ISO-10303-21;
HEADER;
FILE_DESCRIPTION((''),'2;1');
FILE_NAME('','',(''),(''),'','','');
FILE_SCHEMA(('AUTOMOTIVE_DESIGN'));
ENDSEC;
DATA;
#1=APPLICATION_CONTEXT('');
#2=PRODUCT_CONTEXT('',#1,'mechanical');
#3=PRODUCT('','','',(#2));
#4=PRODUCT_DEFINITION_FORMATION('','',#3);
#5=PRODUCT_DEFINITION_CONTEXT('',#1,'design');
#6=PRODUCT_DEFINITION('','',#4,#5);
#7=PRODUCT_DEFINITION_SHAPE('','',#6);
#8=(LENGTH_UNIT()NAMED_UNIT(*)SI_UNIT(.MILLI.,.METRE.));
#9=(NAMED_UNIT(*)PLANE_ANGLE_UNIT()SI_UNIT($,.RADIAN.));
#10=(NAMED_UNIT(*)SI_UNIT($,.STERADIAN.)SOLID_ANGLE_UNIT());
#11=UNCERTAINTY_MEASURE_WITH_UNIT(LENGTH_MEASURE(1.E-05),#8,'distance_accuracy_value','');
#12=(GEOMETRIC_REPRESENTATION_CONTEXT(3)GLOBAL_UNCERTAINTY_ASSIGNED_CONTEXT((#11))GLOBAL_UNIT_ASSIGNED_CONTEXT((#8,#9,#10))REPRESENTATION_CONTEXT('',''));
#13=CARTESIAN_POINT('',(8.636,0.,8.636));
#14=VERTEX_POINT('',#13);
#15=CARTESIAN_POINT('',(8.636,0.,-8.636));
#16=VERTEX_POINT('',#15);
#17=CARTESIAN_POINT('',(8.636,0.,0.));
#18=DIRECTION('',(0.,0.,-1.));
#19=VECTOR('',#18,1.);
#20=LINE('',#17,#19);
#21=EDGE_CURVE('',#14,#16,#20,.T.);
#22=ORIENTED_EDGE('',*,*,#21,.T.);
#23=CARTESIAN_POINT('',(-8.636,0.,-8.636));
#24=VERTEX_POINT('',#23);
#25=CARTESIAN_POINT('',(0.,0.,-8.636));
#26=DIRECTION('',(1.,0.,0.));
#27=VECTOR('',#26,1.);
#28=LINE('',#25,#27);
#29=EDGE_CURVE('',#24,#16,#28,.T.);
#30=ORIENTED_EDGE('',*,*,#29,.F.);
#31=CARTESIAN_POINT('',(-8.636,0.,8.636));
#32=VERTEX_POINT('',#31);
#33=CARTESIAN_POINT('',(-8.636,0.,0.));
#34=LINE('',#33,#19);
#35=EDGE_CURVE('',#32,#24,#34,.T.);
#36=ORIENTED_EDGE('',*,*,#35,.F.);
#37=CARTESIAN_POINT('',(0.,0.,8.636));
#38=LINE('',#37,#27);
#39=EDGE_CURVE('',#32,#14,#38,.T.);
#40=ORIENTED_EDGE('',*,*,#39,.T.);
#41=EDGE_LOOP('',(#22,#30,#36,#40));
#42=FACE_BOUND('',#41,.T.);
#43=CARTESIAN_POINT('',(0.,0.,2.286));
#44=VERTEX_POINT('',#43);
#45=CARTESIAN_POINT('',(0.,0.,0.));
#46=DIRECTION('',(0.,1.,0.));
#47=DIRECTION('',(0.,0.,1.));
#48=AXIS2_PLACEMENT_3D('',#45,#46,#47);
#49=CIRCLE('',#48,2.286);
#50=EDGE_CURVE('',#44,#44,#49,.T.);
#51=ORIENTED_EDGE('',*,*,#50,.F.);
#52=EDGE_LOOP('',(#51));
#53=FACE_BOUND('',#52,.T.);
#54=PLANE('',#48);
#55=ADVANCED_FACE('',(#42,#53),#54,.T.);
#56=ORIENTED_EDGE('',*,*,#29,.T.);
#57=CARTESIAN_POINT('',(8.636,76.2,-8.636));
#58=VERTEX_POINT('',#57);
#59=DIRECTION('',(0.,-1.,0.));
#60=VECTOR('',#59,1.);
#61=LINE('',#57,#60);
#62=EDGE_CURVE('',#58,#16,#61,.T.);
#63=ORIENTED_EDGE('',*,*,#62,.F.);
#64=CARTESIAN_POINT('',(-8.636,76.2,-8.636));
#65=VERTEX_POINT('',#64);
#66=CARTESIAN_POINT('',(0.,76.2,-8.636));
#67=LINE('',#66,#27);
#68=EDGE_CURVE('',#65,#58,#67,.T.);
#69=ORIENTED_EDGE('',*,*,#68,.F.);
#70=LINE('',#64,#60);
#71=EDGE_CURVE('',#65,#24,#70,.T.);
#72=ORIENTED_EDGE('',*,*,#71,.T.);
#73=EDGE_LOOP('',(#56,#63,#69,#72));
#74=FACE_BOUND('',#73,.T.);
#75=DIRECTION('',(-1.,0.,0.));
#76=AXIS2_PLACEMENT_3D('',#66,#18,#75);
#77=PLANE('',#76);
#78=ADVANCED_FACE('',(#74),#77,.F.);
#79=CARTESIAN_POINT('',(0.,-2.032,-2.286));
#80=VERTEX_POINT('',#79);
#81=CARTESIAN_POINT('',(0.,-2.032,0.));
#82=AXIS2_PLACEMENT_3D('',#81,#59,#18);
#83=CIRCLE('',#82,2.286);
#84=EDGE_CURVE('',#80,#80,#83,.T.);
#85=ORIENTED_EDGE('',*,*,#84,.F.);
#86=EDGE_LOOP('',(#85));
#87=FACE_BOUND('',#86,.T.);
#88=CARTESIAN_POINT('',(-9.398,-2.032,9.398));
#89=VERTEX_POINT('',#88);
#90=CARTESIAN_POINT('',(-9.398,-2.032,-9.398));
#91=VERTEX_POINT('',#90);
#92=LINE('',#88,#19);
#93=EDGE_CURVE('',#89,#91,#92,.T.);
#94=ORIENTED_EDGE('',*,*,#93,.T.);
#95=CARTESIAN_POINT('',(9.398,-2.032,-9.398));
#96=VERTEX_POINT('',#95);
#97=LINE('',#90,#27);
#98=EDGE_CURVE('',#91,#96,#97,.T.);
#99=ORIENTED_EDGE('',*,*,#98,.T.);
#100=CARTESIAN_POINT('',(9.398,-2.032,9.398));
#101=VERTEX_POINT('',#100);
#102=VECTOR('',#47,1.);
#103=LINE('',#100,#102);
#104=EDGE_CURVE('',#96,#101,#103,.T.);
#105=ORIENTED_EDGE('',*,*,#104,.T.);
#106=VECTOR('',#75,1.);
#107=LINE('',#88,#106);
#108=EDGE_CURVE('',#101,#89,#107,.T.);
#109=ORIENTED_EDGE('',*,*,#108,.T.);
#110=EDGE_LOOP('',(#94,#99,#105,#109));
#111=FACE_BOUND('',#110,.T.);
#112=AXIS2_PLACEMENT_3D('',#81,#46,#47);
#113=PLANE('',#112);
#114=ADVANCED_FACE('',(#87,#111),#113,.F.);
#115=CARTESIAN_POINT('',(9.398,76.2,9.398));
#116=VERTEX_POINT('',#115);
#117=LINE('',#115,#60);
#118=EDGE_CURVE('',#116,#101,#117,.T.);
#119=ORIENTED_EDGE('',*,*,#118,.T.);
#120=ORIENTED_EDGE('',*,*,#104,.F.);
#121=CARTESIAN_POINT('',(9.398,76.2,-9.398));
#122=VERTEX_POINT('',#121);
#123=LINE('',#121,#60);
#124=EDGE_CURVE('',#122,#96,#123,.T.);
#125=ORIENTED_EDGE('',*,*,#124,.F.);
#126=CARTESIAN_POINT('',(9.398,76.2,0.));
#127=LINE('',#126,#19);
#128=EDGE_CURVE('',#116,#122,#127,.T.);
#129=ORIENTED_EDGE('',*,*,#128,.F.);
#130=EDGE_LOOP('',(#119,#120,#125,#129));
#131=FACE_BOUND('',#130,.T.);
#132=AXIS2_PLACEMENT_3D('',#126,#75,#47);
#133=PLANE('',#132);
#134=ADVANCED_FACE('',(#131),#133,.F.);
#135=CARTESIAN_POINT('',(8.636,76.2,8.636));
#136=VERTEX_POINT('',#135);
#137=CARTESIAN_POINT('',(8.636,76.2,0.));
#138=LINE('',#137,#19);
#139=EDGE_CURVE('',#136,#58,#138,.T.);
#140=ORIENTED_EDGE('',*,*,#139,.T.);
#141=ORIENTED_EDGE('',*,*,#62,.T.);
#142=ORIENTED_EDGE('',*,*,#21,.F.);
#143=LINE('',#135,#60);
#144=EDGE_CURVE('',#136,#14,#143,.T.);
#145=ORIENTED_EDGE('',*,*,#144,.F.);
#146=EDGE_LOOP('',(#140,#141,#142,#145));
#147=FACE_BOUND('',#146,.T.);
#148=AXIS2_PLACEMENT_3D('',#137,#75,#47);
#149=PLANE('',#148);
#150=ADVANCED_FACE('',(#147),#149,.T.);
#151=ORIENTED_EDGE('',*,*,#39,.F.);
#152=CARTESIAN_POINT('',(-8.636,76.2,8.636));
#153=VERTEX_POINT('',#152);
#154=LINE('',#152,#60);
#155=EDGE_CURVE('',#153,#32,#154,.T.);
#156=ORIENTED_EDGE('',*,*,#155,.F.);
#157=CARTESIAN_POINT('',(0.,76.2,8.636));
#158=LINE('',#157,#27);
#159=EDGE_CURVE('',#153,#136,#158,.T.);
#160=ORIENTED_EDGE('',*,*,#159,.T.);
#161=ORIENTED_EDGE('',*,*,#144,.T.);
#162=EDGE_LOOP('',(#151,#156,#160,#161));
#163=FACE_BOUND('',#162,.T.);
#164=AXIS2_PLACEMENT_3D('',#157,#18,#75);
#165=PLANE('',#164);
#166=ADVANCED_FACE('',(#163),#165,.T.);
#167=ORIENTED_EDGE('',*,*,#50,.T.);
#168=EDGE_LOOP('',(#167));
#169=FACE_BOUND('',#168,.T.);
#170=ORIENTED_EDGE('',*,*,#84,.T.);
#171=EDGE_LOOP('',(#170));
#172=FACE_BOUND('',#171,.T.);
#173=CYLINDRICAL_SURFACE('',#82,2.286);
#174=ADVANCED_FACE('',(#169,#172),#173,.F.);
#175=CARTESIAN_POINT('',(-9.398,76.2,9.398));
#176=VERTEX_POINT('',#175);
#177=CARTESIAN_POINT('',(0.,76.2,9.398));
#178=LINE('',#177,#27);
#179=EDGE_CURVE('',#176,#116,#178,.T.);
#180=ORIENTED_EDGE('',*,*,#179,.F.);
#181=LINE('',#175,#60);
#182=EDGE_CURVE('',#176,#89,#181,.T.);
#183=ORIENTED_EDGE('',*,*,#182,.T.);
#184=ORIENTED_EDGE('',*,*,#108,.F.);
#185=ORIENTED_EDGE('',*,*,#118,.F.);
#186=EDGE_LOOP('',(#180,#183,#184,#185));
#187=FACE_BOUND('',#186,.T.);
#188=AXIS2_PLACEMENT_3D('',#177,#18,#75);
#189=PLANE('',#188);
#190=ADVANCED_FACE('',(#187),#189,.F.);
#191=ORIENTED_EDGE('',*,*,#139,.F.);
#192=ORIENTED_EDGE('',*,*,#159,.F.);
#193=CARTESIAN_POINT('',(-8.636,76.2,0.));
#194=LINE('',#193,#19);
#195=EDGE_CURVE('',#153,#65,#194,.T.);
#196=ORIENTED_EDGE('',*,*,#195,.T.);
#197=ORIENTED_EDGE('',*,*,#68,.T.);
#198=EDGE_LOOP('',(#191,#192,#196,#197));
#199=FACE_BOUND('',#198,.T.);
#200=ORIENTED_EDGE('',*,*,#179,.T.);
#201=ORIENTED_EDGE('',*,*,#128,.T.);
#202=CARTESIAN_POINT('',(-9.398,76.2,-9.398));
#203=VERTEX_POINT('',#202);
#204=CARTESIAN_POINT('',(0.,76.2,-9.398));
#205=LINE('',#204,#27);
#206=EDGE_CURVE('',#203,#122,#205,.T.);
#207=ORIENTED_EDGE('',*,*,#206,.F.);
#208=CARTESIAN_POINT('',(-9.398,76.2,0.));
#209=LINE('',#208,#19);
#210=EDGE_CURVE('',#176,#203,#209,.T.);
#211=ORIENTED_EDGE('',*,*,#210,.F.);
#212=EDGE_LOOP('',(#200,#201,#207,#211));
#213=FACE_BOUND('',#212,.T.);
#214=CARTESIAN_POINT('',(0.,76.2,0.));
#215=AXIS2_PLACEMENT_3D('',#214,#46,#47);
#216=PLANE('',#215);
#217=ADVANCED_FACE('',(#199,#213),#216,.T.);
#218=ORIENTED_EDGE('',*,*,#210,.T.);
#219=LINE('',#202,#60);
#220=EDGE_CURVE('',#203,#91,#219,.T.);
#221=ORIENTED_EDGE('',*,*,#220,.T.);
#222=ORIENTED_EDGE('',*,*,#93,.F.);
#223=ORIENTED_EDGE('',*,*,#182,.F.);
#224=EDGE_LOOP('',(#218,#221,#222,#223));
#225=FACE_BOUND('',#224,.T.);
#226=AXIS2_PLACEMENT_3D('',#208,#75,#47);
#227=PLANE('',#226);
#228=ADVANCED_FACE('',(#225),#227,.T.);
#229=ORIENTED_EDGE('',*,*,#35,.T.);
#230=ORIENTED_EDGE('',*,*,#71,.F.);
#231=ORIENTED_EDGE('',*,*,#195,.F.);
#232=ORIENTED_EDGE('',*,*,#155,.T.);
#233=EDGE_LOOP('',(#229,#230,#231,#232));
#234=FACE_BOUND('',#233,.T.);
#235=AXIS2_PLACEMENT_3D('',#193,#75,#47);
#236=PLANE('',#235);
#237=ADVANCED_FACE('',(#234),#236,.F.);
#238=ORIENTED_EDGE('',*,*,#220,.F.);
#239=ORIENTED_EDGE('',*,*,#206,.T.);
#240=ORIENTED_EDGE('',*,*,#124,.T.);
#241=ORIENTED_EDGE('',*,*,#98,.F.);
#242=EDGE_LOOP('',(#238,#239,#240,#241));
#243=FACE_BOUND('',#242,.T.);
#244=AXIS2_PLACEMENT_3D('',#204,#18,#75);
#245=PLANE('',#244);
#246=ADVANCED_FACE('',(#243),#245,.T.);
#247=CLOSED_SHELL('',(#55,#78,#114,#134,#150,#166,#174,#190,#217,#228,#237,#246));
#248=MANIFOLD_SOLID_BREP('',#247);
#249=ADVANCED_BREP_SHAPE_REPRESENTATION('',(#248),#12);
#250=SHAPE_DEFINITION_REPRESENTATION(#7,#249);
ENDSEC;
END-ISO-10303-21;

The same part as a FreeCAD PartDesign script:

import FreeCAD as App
import Part
import Sketcher

V = App.Vector
Q = App.Units.Quantity


def add_polygon(sketch, points):
    """Adds a closed chain of lines whose ends are joined by coincident constraints."""
    first, n = sketch.GeometryCount, len(points)
    for a, b in zip(points, points[1:] + points[:1]):
        sketch.addGeometry(Part.LineSegment(App.Vector(*a, 0), App.Vector(*b, 0)), False)
    for i in range(n):
        sketch.addConstraint(Sketcher.Constraint("Coincident", first + i, 2, first + (i + 1) % n, 1))

doc = App.newDocument("Part")
body = doc.addObject("PartDesign::Body", "Body")

sketch1 = body.newObject("Sketcher::SketchObject", "Sketch")
sketch1.AttachmentSupport = (doc.getObject("XZ_Plane"), [""])
sketch1.MapMode = "FlatFace"
add_polygon(sketch1, [(-9, -9), (-9, 9), (9, 9), (9, -9)])
add_polygon(sketch1, [(9, 9), (-9, 9), (-9, -9), (9, -9)])
sketch1.addConstraint([
    Sketcher.Constraint("Vertical", 0),
    Sketcher.Constraint("Horizontal", 1),
    Sketcher.Constraint("Vertical", 2),
    Sketcher.Constraint("Horizontal", 3),
    Sketcher.Constraint("Horizontal", 4),
    Sketcher.Constraint("Vertical", 5),
    Sketcher.Constraint("Horizontal", 6),
    Sketcher.Constraint("Vertical", 7),
    Sketcher.Constraint("Symmetric", 0, 2, 2, 2, -1, 1),
    Sketcher.Constraint("Symmetric", 4, 2, 6, 2, -1, 1),
    Sketcher.Constraint("Equal", 3, 0),
    Sketcher.Constraint("Equal", 6, 5),
    Sketcher.Constraint("DistanceX", 1, 1, 1, 2, Q("0.74 in")),
    Sketcher.Constraint("DistanceX", 4, 2, 4, 1, Q("0.68 in")),
])
pad1 = body.newObject("PartDesign::Pad", "Pad")
pad1.Profile = sketch1
pad1.Length = Q("3 in")
pad1.Reversed = True

sketch2 = body.newObject("Sketcher::SketchObject", "Sketch001")
sketch2.AttachmentSupport = (doc.getObject("XZ_Plane"), [""])
sketch2.MapMode = "FlatFace"
add_polygon(sketch2, [(-9, 9), (-9, -9), (9, -9), (9, 9)])
sketch2.addConstraint([
    Sketcher.Constraint("Vertical", 0),
    Sketcher.Constraint("Horizontal", 1),
    Sketcher.Constraint("Vertical", 2),
    Sketcher.Constraint("Horizontal", 3),
    Sketcher.Constraint("Symmetric", 0, 2, 2, 2, -1, 1),
    Sketcher.Constraint("Equal", 3, 0),
    Sketcher.Constraint("DistanceX", 1, 1, 1, 2, Q("0.74 in")),
])
pad2 = body.newObject("PartDesign::Pad", "Pad001")
pad2.Profile = sketch2
pad2.Length = Q("0.08 in")

sketch3 = body.newObject("Sketcher::SketchObject", "Sketch002")
sketch3.AttachmentSupport = (doc.getObject("XZ_Plane"), [""])
sketch3.MapMode = "FlatFace"
sketch3.AttachmentOffset = App.Placement(V(0, 0, 0.08 * 25.4), App.Rotation())
sketch3.addGeometry(Part.Circle(V(0, 0, 0), V(0, 0, 1), 2.3), False)
sketch3.addConstraint([
    Sketcher.Constraint("Coincident", 0, 3, -1, 1),
    Sketcher.Constraint("Diameter", 0, Q("0.18 in")),
])
doc.recompute()
hole = body.newObject("PartDesign::Hole", "Hole")
hole.Profile = sketch3
hole.ThreadType = "None"
hole.Diameter = Q("0.18 in")
hole.DepthType = "Dimension"
hole.Depth = Q("0.25 in")
hole.DrillPoint = "Angled"
hole.DrillPointAngle = 118

doc.recompute()
